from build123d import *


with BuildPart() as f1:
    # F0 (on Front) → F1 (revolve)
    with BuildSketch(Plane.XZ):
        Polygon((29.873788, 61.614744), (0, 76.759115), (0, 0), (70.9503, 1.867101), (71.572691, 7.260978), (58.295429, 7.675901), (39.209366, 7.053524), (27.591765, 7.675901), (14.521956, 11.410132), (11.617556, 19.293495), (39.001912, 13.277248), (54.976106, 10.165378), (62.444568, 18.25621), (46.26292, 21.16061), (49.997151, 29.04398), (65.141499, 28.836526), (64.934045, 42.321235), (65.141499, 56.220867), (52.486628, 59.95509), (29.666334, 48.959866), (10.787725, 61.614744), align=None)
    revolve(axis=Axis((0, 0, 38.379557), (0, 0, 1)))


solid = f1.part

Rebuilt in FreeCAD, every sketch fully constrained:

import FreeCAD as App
import Part
import Sketcher


def add_polygon(sketch, points):
    """Adds a closed chain of lines whose ends are joined by coincident constraints."""
    first, n = sketch.GeometryCount, len(points)
    for a, b in zip(points, points[1:] + points[:1]):
        sketch.addGeometry(Part.LineSegment(App.Vector(*a, 0), App.Vector(*b, 0)), False)
    for i in range(n):
        sketch.addConstraint(Sketcher.Constraint("Coincident", first + i, 2, first + (i + 1) % n, 1))

doc = App.newDocument("Part")
body = doc.addObject("PartDesign::Body", "Body")

sketch1 = doc.addObject("Sketcher::SketchObject", "Sketch")
body.addObject(sketch1)
sketch1.AttachmentSupport = (doc.XZ_Plane, [""])
sketch1.MapMode = "FlatFace"
add_polygon(sketch1, [(29.873788, 61.614744), (0, 76.759115), (0, 0), (70.9503, 1.867101), (71.572691, 7.260978), (58.295429, 7.675901), (39.209366, 7.053524), (27.591765, 7.675901), (14.521956, 11.410132), (11.617556, 19.293495), (39.001912, 13.277248), (54.976106, 10.165378), (62.444568, 18.25621), (46.26292, 21.16061), (49.997151, 29.04398), (65.141499, 28.836526), (64.934045, 42.321235), (65.141499, 56.220867), (52.486628, 59.95509), (29.666334, 48.959866), (10.787725, 61.614744)])
sketch1.addConstraint(Sketcher.Constraint("Vertical", 1))
sketch1.addConstraint(Sketcher.Constraint("Horizontal", 20))
sketch1.addConstraint(Sketcher.Constraint("Coincident", 1, 2, -1, 1))
sketch1.addConstraint(Sketcher.Constraint("Horizontal", 4, 2, 6, 2))
sketch1.addConstraint(Sketcher.Constraint("Vertical", 14, 2, 16, 2))
sketch1.addConstraint(Sketcher.Constraint("DistanceX", -1, 1, 2, 2, 70.9503))
sketch1.addConstraint(Sketcher.Constraint("DistanceY", -1, 1, 2, 2, 1.867101))
sketch1.addConstraint(Sketcher.Constraint("DistanceY", -1, 1, 4, 2, 7.675901))
sketch1.addConstraint(Sketcher.Constraint("DistanceX", -1, 1, 14, 2, 65.141499))
sketch1.addConstraint(Sketcher.Constraint("DistanceX", 6, 2, 5, 2, 11.617601))
sketch1.addConstraint(Sketcher.Constraint("DistanceX", 8, 2, 7, 2, 2.9044))
sketch1.addConstraint(Sketcher.Constraint("DistanceY", 3, 2, 10, 2, 2.9044))
sketch1.addConstraint(Sketcher.Constraint("DistanceY", 11, 2, 12, 2, 2.9044))
sketch1.addConstraint(Sketcher.Constraint("Distance", 0, 33.493211))
sketch1.addConstraint(Sketcher.Constraint("Distance", 6, 11.63426))
sketch1.addConstraint(Sketcher.Constraint("Distance", 11, 11.01088))
sketch1.addConstraint(Sketcher.Constraint("Distance", 14, 15.145769))
sketch1.addConstraint(Sketcher.Constraint("Distance", 16, 13.90118))
sketch1.addConstraint(Sketcher.Constraint("Distance", 19, 22.727688))
sketch1.addConstraint(Sketcher.Constraint("DistanceX", 20, 1, 20, 2, 19.086063))
sketch1.addConstraint(Sketcher.Constraint("DistanceY", 1, 2, 1, 1, 76.759115))
sketch1.addConstraint(Sketcher.Constraint("DistanceX", -1, 1, 3, 2, 71.572691))
sketch1.addConstraint(Sketcher.Constraint("DistanceX", -1, 1, 4, 2, 58.295429))
sketch1.addConstraint(Sketcher.Constraint("DistanceX", -1, 1, 9, 2, 39.001912))
sketch1.addConstraint(Sketcher.Constraint("DistanceY", -1, 1, 11, 2, 18.25621))
sketch1.addConstraint(Sketcher.Constraint("DistanceX", -1, 1, 12, 2, 46.26292))
sketch1.addConstraint(Sketcher.Constraint("DistanceX", -1, 1, 13, 2, 49.997151))
sketch1.addConstraint(Sketcher.Constraint("DistanceY", -1, 1, 13, 2, 29.04398))
sketch1.addConstraint(Sketcher.Constraint("DistanceX", -1, 1, 17, 2, 52.486628))
sketch1.addConstraint(Sketcher.Constraint("DistanceY", -1, 1, 17, 2, 59.95509))
sketch1.addConstraint(Sketcher.Constraint("DistanceX", -1, 1, 20, 2, 29.873788))
sketch1.addConstraint(Sketcher.Constraint("DistanceX", 7, 2, 6, 2, 13.069809))
sketch1.addConstraint(Sketcher.Constraint("DistanceY", 6, 2, 7, 2, 3.734231))
sketch1.addConstraint(Sketcher.Constraint("DistanceY", 5, 2, 8, 2, 12.239971))
sketch1.addConstraint(Sketcher.Constraint("DistanceX", 5, 2, 10, 2, 15.76674))
sketch1.addConstraint(Sketcher.Constraint("DistanceY", 10, 2, 9, 2, 3.11187))
sketch1.addConstraint(Sketcher.Constraint("DistanceX", 10, 2, 11, 2, 7.468462))
sketch1.addConstraint(Sketcher.Constraint("DistanceX", 4, 2, 11, 2, 4.149139))
sketch1.addConstraint(Sketcher.Constraint("DistanceY", 14, 2, 15, 2, 13.484709))
sketch1.addConstraint(Sketcher.Constraint("DistanceX", 10, 2, 15, 2, 9.957939))
sketch1.addConstraint(Sketcher.Constraint("DistanceY", 8, 2, 18, 2, 29.666371))
revolution = doc.addObject("PartDesign::Revolution", "Revolution")
body.addObject(revolution)
revolution.Profile = sketch1
revolution.ReferenceAxis = (sketch1, ["V_Axis"])
revolution.Angle = 360

doc.recompute()
